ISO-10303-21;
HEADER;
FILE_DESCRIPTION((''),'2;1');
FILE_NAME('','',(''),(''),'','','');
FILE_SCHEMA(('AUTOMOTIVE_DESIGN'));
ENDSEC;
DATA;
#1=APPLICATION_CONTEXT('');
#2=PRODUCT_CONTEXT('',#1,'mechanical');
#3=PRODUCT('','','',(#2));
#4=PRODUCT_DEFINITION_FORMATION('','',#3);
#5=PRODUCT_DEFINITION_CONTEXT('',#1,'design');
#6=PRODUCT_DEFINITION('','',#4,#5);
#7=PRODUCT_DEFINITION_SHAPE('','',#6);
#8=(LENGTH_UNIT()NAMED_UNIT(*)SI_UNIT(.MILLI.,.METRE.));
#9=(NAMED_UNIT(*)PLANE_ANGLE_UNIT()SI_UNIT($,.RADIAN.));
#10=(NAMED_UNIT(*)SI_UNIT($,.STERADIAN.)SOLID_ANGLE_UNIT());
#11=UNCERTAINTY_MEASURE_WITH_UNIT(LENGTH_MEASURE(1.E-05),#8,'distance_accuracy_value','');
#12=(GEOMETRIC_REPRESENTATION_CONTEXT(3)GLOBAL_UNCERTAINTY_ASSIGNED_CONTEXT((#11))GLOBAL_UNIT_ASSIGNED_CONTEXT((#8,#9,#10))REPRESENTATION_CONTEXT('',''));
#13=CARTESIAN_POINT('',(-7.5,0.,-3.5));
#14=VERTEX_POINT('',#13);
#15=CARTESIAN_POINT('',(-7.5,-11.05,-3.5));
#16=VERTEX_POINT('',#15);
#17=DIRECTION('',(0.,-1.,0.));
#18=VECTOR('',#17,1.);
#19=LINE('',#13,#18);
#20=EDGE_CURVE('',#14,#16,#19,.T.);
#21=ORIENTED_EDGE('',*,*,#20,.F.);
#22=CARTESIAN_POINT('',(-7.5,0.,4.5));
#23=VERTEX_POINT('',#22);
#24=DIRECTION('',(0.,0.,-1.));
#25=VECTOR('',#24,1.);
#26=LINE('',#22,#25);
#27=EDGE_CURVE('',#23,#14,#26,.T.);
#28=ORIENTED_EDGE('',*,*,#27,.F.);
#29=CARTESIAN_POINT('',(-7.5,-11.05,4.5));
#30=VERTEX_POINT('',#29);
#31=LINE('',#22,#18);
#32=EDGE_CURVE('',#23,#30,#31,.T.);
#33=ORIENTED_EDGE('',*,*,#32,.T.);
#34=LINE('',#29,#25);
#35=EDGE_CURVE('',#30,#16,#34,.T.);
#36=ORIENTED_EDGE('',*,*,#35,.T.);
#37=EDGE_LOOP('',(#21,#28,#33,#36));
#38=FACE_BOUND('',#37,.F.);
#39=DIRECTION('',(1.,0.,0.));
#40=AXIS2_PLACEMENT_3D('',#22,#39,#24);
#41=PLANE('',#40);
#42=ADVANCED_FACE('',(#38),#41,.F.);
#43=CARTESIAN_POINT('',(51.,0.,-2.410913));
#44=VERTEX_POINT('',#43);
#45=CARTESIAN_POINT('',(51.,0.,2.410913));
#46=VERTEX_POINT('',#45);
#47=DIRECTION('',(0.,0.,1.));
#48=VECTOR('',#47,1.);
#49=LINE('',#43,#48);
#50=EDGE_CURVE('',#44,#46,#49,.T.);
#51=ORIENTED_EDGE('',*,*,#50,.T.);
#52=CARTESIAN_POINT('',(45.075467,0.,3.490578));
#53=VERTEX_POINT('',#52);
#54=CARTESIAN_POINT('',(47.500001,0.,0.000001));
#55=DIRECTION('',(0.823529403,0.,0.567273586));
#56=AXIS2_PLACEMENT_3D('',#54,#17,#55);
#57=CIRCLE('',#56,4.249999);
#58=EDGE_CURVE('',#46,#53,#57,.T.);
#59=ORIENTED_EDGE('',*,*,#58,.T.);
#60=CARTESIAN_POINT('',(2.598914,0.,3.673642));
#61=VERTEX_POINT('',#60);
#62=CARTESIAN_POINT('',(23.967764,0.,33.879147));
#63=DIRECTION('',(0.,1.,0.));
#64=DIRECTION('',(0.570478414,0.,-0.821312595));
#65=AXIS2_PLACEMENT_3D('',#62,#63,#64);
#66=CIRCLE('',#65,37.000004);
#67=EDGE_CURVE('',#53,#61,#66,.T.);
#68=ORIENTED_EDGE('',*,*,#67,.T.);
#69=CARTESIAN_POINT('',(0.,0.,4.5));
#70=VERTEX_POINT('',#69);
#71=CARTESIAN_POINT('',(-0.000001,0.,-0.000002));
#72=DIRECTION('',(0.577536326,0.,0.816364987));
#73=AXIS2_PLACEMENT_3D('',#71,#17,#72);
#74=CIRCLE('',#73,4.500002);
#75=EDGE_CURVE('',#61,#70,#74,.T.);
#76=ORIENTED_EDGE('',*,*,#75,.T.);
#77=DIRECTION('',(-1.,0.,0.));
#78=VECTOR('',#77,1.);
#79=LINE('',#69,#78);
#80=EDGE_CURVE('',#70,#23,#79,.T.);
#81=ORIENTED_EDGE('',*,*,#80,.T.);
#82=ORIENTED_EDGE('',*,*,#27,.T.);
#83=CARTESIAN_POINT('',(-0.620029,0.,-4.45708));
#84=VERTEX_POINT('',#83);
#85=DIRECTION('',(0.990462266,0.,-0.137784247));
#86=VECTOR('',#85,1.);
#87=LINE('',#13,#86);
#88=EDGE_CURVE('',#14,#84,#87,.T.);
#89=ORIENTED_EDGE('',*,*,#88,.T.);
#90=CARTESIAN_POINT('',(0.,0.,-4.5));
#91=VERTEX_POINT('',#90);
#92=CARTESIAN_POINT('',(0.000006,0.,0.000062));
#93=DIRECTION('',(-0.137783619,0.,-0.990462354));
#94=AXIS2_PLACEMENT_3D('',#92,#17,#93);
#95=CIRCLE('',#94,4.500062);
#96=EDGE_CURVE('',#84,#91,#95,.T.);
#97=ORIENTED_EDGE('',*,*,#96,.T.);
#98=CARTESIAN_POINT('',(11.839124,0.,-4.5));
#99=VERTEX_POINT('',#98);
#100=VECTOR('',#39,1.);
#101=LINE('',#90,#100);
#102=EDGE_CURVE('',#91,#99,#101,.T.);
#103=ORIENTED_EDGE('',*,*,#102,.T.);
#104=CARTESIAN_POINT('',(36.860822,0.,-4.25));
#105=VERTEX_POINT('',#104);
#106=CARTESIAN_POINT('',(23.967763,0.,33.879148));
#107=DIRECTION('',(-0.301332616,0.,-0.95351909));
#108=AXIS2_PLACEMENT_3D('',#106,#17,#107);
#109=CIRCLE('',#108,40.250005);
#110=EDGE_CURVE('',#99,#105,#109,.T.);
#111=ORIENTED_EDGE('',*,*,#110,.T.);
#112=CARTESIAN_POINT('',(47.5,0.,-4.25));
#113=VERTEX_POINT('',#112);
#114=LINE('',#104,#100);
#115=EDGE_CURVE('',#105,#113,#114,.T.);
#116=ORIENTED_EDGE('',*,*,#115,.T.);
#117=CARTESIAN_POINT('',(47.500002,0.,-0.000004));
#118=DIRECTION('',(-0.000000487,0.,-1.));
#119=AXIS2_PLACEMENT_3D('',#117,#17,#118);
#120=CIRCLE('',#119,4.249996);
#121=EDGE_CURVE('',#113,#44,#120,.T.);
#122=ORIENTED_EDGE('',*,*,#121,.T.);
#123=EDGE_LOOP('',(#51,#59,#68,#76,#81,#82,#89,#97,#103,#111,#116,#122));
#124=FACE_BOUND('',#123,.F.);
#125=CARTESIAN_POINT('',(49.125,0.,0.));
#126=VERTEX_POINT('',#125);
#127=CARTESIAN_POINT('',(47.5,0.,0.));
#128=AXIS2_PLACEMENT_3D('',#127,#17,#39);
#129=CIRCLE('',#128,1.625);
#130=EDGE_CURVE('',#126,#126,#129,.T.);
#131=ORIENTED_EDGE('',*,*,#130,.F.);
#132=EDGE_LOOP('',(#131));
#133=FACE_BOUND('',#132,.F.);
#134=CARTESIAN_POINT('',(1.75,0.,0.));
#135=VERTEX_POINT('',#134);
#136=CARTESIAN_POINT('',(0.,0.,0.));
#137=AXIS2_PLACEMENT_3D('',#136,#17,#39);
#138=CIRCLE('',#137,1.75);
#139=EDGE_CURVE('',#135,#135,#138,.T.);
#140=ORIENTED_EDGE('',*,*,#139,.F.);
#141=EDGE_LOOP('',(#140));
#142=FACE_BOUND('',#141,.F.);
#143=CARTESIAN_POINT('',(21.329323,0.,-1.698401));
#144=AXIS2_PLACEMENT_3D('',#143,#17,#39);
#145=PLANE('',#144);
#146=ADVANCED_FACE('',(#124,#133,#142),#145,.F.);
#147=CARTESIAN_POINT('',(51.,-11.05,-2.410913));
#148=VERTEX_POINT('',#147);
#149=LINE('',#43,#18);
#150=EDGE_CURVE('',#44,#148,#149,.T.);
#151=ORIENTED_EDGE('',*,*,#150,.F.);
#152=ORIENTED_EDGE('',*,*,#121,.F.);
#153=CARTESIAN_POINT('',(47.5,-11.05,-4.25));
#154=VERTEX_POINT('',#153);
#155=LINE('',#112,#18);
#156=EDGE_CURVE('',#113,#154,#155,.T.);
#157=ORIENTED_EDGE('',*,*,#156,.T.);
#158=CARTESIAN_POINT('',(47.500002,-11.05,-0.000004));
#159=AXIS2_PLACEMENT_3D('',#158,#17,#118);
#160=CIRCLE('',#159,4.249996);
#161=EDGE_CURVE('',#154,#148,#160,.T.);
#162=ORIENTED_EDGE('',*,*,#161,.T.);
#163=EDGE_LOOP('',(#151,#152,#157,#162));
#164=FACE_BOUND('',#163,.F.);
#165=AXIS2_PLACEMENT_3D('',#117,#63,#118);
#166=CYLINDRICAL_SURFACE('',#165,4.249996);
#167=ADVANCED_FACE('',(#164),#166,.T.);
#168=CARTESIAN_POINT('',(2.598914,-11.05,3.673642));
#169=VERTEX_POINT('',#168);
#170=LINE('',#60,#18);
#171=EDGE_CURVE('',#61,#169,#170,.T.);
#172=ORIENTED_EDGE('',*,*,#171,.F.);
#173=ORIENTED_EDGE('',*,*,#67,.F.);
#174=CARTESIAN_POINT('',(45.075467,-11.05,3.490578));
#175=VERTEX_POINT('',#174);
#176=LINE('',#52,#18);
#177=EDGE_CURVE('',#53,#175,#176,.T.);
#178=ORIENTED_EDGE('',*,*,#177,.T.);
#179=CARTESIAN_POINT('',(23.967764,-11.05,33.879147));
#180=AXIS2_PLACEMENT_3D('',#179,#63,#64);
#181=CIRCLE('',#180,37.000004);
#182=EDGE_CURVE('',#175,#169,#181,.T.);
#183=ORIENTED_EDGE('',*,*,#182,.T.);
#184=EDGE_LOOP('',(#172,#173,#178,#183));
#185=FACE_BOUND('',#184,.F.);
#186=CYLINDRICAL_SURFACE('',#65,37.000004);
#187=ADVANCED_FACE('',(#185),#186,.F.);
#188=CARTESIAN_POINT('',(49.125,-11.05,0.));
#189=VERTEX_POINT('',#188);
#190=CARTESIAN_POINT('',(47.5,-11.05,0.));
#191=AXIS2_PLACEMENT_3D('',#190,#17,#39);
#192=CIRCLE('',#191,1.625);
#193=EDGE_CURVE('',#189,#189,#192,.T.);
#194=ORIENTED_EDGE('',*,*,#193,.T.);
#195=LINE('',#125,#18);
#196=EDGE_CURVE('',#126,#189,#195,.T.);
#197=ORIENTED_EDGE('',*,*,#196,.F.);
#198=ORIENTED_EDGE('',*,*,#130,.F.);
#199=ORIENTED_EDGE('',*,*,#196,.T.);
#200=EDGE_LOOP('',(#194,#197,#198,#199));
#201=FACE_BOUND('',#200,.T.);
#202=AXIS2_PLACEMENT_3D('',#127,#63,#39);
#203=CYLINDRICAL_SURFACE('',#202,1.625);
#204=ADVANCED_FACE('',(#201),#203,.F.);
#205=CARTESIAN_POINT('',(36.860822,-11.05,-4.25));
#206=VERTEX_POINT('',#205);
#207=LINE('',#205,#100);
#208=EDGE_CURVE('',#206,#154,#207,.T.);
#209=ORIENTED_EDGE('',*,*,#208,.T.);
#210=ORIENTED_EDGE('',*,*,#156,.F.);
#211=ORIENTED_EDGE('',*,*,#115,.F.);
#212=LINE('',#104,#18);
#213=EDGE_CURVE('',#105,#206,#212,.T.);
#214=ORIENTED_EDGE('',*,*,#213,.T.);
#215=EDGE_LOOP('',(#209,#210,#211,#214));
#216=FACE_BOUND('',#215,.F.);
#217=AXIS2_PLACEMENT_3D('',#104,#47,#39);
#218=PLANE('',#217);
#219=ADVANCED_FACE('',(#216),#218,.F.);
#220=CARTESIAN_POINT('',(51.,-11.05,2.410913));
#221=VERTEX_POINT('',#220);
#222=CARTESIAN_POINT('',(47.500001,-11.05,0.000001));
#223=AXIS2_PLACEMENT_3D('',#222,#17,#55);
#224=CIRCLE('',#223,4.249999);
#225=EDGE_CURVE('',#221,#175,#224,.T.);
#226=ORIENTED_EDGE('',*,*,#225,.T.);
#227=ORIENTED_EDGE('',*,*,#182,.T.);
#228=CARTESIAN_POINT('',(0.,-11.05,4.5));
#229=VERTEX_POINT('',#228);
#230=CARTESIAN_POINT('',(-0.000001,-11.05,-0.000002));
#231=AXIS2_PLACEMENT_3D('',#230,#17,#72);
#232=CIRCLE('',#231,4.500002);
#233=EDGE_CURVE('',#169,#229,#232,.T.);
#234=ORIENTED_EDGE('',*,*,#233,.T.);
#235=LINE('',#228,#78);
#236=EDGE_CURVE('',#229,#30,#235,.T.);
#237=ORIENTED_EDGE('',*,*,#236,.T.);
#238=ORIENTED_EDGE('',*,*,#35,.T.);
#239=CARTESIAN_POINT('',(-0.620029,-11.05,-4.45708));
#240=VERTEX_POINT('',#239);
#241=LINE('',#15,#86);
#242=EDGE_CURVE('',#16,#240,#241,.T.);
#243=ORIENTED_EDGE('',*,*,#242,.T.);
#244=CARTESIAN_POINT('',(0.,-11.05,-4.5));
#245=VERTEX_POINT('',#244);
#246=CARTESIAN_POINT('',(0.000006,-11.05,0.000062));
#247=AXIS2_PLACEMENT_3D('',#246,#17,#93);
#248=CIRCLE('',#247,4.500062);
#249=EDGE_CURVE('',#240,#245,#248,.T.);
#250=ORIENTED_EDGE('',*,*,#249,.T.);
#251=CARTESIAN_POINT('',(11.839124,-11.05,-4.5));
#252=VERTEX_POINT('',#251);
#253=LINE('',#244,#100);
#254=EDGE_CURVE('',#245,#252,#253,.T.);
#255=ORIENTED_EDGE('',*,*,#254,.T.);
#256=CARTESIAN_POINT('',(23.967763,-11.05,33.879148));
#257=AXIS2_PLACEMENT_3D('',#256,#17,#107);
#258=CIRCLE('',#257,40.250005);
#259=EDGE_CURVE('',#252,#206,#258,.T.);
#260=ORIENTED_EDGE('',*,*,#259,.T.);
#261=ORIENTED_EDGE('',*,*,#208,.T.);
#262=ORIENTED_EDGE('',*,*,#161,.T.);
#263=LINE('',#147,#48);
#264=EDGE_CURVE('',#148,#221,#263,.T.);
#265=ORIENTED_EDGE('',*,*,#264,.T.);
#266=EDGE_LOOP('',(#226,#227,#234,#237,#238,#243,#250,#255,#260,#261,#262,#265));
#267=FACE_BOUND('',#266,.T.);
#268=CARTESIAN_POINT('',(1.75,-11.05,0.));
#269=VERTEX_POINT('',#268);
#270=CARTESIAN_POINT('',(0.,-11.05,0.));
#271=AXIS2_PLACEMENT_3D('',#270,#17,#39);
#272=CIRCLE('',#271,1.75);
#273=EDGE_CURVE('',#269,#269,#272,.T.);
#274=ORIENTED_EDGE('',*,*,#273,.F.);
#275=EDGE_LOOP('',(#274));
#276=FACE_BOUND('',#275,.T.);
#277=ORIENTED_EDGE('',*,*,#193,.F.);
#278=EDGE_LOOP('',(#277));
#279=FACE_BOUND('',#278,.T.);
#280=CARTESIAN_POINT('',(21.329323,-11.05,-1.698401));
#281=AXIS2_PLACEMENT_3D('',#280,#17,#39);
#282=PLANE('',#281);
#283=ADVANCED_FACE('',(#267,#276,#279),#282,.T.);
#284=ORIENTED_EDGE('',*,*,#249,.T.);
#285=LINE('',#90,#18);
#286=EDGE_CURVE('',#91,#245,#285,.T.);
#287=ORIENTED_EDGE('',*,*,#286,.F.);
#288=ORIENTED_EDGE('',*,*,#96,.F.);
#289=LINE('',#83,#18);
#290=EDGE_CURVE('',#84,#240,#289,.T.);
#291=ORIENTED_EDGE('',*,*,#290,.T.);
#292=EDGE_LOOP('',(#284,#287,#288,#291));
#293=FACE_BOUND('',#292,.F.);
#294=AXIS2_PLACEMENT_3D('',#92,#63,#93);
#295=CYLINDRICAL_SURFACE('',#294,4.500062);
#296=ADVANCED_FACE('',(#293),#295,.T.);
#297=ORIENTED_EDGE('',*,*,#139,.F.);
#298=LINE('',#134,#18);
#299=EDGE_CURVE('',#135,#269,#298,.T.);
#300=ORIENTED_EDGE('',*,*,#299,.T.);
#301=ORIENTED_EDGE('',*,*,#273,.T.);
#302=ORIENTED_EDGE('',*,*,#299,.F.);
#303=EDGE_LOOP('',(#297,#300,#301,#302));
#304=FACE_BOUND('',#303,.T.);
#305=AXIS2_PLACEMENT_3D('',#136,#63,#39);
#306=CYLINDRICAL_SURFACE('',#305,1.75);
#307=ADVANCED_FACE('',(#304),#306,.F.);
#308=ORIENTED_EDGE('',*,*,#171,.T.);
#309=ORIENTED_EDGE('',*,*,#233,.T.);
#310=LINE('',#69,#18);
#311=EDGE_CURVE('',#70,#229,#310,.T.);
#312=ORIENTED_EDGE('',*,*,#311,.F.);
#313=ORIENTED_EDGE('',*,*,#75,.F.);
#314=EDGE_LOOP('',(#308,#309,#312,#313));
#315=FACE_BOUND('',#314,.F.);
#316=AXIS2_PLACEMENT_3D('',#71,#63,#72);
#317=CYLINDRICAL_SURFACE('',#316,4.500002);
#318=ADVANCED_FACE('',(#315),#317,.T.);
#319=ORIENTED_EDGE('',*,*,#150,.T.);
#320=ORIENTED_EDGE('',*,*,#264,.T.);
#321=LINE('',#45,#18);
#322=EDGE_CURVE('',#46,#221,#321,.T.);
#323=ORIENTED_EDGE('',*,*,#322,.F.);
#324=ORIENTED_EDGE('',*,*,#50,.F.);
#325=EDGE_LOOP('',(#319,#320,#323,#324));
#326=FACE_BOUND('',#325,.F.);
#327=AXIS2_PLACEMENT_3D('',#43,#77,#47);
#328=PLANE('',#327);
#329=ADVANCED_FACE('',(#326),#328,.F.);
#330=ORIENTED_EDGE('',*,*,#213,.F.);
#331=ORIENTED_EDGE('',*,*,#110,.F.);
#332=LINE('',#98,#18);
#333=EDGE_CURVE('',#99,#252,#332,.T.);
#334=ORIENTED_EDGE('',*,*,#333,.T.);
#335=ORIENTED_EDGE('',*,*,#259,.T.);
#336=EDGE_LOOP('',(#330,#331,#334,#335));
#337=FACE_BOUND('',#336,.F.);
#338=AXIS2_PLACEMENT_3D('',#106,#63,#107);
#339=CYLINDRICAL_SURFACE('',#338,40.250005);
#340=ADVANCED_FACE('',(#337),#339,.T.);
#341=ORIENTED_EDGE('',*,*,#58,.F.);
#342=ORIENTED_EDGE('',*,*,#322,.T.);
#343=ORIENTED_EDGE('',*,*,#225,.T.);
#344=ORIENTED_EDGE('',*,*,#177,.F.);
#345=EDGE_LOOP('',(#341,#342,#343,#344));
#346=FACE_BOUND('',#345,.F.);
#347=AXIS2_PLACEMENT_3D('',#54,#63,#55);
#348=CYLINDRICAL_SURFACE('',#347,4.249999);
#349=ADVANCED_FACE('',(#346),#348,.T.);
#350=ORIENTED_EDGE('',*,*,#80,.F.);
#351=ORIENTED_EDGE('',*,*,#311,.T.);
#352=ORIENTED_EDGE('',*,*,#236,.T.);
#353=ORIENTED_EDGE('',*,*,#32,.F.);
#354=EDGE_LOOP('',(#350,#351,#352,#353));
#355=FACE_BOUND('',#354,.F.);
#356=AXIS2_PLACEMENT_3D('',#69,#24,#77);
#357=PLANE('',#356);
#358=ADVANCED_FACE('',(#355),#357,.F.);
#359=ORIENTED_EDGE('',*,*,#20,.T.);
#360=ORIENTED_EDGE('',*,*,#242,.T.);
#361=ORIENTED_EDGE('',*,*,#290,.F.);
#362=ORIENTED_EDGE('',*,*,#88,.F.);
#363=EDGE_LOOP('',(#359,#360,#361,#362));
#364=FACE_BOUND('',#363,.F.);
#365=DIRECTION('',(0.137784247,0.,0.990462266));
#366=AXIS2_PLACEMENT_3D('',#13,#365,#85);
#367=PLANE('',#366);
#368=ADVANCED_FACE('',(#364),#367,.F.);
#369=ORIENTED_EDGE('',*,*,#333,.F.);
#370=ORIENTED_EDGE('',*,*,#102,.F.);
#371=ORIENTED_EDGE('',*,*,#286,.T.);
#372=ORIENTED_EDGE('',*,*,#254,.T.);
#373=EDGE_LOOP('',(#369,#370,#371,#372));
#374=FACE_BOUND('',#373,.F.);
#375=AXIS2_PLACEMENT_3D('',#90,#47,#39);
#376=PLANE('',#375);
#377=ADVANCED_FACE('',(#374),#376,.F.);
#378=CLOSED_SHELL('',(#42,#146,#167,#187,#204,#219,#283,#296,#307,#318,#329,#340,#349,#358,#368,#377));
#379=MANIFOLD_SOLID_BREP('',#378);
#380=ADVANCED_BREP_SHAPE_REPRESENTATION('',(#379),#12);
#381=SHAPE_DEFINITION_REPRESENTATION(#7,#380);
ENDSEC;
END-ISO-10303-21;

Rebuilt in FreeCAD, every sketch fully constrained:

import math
import FreeCAD as App
import Part
import Sketcher

V = App.Vector
Q = App.Units.Quantity

doc = App.newDocument("Part")
params = doc.addObject("Spreadsheet::Sheet", "Params")
for row, (alias, value) in enumerate([
    ("sketch1_diameter", "3.5 mm"),
    ("sketch1_diameter2", "3.25 mm"),
    ("sketch1_height", "8 mm"),
    ("sketch1_radius", "4.249999 mm"),
    ("sketch1_width", "7.5 mm"),
    ("pad1_length", "11.05 mm"),
], start=1):
    params.set(f"A{row}", alias)
    params.set(f"B{row}", "=" + value)
    params.setAlias(f"B{row}", alias)

body = doc.addObject("PartDesign::Body", "Body")

sketch1 = body.newObject("Sketcher::SketchObject", "Sketch")
sketch1.AttachmentSupport = (doc.getObject("XZ_Plane"), [""])
sketch1.MapMode = "FlatFace"
sketch1.addGeometry([
    Part.LineSegment(V(-7.5, -3.5, 0), V(-0.6, -4.5, 0)),
    Part.ArcOfCircle(Part.Circle(V(0, 0, 0), V(0, 0, 1), 4.5), math.radians(-97.92), math.radians(-90)),
    Part.LineSegment(V(0, -4.5, 0), V(11.8, -4.5, 0)),
    Part.ArcOfCircle(Part.Circle(V(24, 33.9, 0), V(0, 0, 1), 40.3), math.radians(-108), math.radians(-71)),
    Part.LineSegment(V(36.9, -4.2, 0), V(47.5, -4.2, 0)),
    Part.ArcOfCircle(Part.Circle(V(47.5, 0, 0), V(0, 0, 1), 4.2), math.radians(-90), math.radians(-35)),
    Part.LineSegment(V(51, -2.4, 0), V(51, 2.4, 0)),
    Part.ArcOfCircle(Part.Circle(V(47.5, 0, 0), V(0, 0, 1), 4.2), math.radians(35), math.radians(125)),
    Part.ArcOfCircle(Part.Circle(V(24, 33.9, 0), V(0, 0, 1), 37), math.radians(-125), math.radians(-55)),
    Part.ArcOfCircle(Part.Circle(V(0, 0, 0), V(0, 0, 1), 4.5), math.radians(55), math.radians(90)),
    Part.LineSegment(V(0, 4.5, 0), V(-7.5, 4.5, 0)),
    Part.LineSegment(V(-7.5, 4.5, 0), V(-7.5, -3.5, 0)),
    Part.Circle(V(0, 0, 0), V(0, 0, 1), 1.8),
    Part.Circle(V(47.5, 0, 0), V(0, 0, 1), 1.6),
], False)
sketch1.addConstraint([
    Sketcher.Constraint("Tangent", 0, 2, 1, 1),
    Sketcher.Constraint("Tangent", 1, 2, 2, 1),
    Sketcher.Constraint("Coincident", 2, 2, 3, 1),
    Sketcher.Constraint("Coincident", 3, 2, 4, 1),
    Sketcher.Constraint("Tangent", 4, 2, 5, 1),
    Sketcher.Constraint("Coincident", 5, 2, 6, 1),
    Sketcher.Constraint("Coincident", 6, 2, 7, 1),
    Sketcher.Constraint("Tangent", 7, 2, 8, 2),
    Sketcher.Constraint("Tangent", 8, 1, 9, 1),
    Sketcher.Constraint("Tangent", 9, 2, 10, 1),
    Sketcher.Constraint("Coincident", 10, 2, 11, 1),
    Sketcher.Constraint("Coincident", 11, 2, 0, 1),
    Sketcher.Constraint("Horizontal", 2),
    Sketcher.Constraint("Horizontal", 4),
    Sketcher.Constraint("Vertical", 6),
    Sketcher.Constraint("Horizontal", 10),
    Sketcher.Constraint("Vertical", 11),
    Sketcher.Constraint("Coincident", 9, 3, -1, 1),
    Sketcher.Constraint("Coincident", 12, 3, -1, 1),
    Sketcher.Constraint("Coincident", 7, 3, 5, 3),
    Sketcher.Constraint("Coincident", 8, 3, 3, 3),
    Sketcher.Constraint("Coincident", 13, 3, 5, 3),
    Sketcher.Constraint("Symmetric", 1, 2, 9, 2, -1, 1),
    Sketcher.Constraint("PointOnObject", 7, 3, -1),
    Sketcher.Constraint("Diameter", 12, Q("3.5 mm")),
    Sketcher.Constraint("Diameter", 13, Q("3.25 mm")),
    Sketcher.Constraint("DistanceY", 11, 2, 11, 1, Q("8 mm")),
    Sketcher.Constraint("Radius", 7, Q("4.249999 mm")),
    Sketcher.Constraint("DistanceX", 10, 2, 10, 1, Q("7.5 mm")),
    Sketcher.Constraint("DistanceX", -1, 1, 5, 2, Q("51 mm")),
    Sketcher.Constraint("DistanceY", 1, 2, 11, 2, Q("1 mm")),
    Sketcher.Constraint("DistanceX", -1, 1, 7, 3, Q("47.500001 mm")),
    Sketcher.Constraint("DistanceY", 3, 2, -1, 1, Q("4.25 mm")),
    Sketcher.Constraint("Radius", 1, Q("4.500062 mm")),
    Sketcher.Constraint("Radius", 3, Q("40.250005 mm")),
    Sketcher.Constraint("Radius", 8, Q("37.000004 mm")),
])
sketch1.setExpression("Constraints[24]", "Params.sketch1_diameter")
sketch1.setExpression("Constraints[25]", "Params.sketch1_diameter2")
sketch1.setExpression("Constraints[26]", "Params.sketch1_height")
sketch1.setExpression("Constraints[27]", "Params.sketch1_radius")
sketch1.setExpression("Constraints[28]", "Params.sketch1_width")
pad1 = body.newObject("PartDesign::Pad", "Pad")
pad1.Profile = sketch1
pad1.setExpression("Length", "Params.pad1_length")

doc.recompute()
